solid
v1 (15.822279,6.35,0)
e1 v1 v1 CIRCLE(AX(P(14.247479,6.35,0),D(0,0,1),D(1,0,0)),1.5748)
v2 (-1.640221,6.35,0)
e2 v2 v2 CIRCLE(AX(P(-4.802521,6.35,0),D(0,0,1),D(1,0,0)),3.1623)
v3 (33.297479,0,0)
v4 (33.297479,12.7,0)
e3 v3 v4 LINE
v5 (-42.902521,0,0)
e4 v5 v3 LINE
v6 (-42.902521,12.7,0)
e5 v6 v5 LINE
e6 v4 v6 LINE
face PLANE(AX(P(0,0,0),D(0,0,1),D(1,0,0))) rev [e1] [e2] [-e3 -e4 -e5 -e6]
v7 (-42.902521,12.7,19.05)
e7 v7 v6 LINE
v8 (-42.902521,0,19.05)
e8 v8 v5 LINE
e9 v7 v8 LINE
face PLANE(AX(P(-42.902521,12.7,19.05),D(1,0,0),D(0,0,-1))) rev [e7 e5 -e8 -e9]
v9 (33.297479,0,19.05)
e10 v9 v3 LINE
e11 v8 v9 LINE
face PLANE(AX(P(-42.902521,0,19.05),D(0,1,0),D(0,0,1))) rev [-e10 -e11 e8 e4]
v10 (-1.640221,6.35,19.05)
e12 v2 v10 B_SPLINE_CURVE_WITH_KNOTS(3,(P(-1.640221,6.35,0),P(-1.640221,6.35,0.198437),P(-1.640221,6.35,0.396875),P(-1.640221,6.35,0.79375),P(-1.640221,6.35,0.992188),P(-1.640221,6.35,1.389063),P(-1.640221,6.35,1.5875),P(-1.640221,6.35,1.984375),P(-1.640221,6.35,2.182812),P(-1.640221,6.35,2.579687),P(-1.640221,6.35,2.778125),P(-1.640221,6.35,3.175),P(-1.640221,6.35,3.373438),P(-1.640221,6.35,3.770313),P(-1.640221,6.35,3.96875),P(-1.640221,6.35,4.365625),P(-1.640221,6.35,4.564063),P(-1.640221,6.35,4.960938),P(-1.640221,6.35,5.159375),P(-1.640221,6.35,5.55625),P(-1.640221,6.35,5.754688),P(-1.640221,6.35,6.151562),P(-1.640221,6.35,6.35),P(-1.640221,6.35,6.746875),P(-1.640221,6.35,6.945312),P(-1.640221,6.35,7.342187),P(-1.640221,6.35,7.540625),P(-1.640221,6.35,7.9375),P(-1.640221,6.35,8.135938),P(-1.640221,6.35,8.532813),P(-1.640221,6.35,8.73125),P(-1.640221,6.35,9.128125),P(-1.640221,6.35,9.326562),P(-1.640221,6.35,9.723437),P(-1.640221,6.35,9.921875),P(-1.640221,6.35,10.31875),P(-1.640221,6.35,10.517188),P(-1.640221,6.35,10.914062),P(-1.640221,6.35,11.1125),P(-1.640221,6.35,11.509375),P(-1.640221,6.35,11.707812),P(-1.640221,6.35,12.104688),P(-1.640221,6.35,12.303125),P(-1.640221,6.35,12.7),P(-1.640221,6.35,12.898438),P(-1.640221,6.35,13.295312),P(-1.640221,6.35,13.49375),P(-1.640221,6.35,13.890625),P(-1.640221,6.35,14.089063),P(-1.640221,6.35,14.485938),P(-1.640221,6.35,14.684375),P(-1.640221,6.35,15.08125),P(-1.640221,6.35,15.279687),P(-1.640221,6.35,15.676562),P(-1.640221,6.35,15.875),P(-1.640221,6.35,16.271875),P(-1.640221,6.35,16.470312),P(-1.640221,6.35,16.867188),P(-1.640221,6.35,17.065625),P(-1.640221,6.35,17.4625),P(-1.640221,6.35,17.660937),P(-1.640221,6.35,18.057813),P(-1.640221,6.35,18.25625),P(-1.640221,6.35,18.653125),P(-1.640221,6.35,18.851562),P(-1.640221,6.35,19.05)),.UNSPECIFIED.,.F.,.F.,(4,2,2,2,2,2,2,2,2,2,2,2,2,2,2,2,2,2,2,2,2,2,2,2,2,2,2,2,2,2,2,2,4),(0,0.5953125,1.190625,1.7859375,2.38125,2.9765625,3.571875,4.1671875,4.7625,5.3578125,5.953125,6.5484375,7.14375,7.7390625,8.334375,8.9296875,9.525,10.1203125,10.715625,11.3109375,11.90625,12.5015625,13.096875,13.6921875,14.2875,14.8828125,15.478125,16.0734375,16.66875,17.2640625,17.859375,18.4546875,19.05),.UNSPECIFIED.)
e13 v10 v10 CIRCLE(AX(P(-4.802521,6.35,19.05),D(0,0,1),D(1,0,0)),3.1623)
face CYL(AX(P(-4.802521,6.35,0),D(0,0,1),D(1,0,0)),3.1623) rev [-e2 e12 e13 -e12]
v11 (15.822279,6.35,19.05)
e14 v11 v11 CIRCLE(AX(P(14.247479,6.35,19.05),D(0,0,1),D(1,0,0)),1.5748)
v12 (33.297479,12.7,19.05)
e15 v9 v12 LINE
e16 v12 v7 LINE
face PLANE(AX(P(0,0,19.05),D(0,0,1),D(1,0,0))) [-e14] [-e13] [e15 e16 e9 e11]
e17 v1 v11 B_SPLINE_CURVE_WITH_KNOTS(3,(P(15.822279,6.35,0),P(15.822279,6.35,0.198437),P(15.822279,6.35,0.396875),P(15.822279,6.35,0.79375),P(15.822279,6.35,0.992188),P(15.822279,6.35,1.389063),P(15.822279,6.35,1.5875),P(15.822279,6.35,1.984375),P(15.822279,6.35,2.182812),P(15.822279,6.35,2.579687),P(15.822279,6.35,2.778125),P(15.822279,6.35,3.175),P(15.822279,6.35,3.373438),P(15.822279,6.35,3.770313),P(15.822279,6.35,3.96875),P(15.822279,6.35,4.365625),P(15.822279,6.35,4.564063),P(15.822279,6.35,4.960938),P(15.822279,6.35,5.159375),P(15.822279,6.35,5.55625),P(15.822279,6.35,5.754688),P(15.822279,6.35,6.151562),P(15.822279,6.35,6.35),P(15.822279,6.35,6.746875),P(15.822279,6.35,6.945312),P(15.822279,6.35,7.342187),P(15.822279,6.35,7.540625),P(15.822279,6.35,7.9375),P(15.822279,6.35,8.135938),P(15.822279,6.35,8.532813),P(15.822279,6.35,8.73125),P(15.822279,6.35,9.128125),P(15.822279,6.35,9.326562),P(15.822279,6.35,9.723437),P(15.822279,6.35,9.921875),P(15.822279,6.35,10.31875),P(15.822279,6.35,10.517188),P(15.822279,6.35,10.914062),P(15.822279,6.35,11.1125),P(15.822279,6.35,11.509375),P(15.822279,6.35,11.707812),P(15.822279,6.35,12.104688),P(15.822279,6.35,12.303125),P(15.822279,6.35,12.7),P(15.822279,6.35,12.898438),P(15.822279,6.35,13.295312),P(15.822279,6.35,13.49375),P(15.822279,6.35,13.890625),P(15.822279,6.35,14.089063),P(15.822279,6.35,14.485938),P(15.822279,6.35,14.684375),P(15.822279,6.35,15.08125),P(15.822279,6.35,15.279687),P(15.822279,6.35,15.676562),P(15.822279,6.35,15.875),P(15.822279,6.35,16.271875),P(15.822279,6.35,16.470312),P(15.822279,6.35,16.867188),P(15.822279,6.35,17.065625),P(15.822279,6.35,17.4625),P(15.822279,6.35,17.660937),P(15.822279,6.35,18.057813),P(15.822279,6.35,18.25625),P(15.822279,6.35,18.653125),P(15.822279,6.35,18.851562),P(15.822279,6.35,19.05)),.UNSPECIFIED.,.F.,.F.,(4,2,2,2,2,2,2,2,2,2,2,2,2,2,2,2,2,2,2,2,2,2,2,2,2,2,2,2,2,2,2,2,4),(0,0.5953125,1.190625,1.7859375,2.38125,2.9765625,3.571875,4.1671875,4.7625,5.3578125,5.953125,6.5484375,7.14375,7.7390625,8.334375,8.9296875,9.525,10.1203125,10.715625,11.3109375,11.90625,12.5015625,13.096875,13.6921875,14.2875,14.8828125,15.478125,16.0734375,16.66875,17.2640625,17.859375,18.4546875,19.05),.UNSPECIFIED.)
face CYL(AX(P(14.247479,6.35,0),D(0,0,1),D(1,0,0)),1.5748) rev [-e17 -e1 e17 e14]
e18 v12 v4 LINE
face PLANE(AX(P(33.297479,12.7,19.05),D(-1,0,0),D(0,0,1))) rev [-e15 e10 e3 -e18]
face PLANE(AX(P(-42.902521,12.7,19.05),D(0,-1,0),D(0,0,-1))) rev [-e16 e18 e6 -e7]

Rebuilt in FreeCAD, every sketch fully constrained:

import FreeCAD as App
import Part
import Sketcher

V = App.Vector
Q = App.Units.Quantity


def add_polygon(sketch, points):
    """Adds a closed chain of lines whose ends are joined by coincident constraints."""
    first, n = sketch.GeometryCount, len(points)
    for a, b in zip(points, points[1:] + points[:1]):
        sketch.addGeometry(Part.LineSegment(App.Vector(*a, 0), App.Vector(*b, 0)), False)
    for i in range(n):
        sketch.addConstraint(Sketcher.Constraint("Coincident", first + i, 2, first + (i + 1) % n, 1))

doc = App.newDocument("Part")
body = doc.addObject("PartDesign::Body", "Body")

# Sketch on XY plane
sketch1 = body.newObject("Sketcher::SketchObject", "Sketch")
sketch1.AttachmentSupport = (doc.getObject("XY_Plane"), [""])
sketch1.MapMode = "FlatFace"
add_polygon(sketch1, [(-42.902521, 12.7), (-42.902521, 0), (33.297479, 0), (33.297479, 12.7)])  # lines 0-3
sketch1.addConstraint([
    Sketcher.Constraint("Vertical", 0),
    Sketcher.Constraint("Horizontal", 1),
    Sketcher.Constraint("Vertical", 2),
    Sketcher.Constraint("Horizontal", 3),
    Sketcher.Constraint("PointOnObject", 0, 2, -1),
    Sketcher.Constraint("DistanceX", 1, 1, 1, 2, Q("3 in")),
    Sketcher.Constraint("DistanceY", 0, 2, 0, 1, Q("0.5 in")),
    Sketcher.Constraint("DistanceX", 0, 2, -1, 1, Q("42.902521 mm")),
])
pad1 = body.newObject("PartDesign::Pad", "Pad")
pad1.Profile = sketch1
pad1.Length = Q("0.75 in")

# Sketch on XY plane
sketch2 = body.newObject("Sketcher::SketchObject", "Sketch001")
sketch2.AttachmentSupport = (doc.getObject("XY_Plane"), [""])
sketch2.MapMode = "FlatFace"
sketch2.AttachmentOffset = App.Placement(V(0, 0, 0.75 * 25.4), App.Rotation())
sketch2.addGeometry([
    Part.Circle(V(-4.802521, 6.35, 0), V(0, 0, 1), 3.1623),
    Part.Circle(V(14.247479, 6.35, 0), V(0, 0, 1), 1.5748),
], False)
sketch2.addConstraint([
    Sketcher.Constraint("Horizontal", 0, 3, 1, 3),
    Sketcher.Constraint("Diameter", 0, Q("0.249 in")),
    Sketcher.Constraint("Diameter", 1, Q("0.124 in")),
    Sketcher.Constraint("DistanceY", -1, 1, 0, 3, Q("0.25 in")),
    Sketcher.Constraint("DistanceX", 0, 3, 1, 3, Q("0.75 in")),
    Sketcher.Constraint("DistanceX", 0, 3, -1, 1, Q("4.802521 mm")),
])
pocket1 = body.newObject("PartDesign::Pocket", "Pocket")
pocket1.Profile = sketch2
pocket1.Length = Q("0.75 in")

doc.recompute()
